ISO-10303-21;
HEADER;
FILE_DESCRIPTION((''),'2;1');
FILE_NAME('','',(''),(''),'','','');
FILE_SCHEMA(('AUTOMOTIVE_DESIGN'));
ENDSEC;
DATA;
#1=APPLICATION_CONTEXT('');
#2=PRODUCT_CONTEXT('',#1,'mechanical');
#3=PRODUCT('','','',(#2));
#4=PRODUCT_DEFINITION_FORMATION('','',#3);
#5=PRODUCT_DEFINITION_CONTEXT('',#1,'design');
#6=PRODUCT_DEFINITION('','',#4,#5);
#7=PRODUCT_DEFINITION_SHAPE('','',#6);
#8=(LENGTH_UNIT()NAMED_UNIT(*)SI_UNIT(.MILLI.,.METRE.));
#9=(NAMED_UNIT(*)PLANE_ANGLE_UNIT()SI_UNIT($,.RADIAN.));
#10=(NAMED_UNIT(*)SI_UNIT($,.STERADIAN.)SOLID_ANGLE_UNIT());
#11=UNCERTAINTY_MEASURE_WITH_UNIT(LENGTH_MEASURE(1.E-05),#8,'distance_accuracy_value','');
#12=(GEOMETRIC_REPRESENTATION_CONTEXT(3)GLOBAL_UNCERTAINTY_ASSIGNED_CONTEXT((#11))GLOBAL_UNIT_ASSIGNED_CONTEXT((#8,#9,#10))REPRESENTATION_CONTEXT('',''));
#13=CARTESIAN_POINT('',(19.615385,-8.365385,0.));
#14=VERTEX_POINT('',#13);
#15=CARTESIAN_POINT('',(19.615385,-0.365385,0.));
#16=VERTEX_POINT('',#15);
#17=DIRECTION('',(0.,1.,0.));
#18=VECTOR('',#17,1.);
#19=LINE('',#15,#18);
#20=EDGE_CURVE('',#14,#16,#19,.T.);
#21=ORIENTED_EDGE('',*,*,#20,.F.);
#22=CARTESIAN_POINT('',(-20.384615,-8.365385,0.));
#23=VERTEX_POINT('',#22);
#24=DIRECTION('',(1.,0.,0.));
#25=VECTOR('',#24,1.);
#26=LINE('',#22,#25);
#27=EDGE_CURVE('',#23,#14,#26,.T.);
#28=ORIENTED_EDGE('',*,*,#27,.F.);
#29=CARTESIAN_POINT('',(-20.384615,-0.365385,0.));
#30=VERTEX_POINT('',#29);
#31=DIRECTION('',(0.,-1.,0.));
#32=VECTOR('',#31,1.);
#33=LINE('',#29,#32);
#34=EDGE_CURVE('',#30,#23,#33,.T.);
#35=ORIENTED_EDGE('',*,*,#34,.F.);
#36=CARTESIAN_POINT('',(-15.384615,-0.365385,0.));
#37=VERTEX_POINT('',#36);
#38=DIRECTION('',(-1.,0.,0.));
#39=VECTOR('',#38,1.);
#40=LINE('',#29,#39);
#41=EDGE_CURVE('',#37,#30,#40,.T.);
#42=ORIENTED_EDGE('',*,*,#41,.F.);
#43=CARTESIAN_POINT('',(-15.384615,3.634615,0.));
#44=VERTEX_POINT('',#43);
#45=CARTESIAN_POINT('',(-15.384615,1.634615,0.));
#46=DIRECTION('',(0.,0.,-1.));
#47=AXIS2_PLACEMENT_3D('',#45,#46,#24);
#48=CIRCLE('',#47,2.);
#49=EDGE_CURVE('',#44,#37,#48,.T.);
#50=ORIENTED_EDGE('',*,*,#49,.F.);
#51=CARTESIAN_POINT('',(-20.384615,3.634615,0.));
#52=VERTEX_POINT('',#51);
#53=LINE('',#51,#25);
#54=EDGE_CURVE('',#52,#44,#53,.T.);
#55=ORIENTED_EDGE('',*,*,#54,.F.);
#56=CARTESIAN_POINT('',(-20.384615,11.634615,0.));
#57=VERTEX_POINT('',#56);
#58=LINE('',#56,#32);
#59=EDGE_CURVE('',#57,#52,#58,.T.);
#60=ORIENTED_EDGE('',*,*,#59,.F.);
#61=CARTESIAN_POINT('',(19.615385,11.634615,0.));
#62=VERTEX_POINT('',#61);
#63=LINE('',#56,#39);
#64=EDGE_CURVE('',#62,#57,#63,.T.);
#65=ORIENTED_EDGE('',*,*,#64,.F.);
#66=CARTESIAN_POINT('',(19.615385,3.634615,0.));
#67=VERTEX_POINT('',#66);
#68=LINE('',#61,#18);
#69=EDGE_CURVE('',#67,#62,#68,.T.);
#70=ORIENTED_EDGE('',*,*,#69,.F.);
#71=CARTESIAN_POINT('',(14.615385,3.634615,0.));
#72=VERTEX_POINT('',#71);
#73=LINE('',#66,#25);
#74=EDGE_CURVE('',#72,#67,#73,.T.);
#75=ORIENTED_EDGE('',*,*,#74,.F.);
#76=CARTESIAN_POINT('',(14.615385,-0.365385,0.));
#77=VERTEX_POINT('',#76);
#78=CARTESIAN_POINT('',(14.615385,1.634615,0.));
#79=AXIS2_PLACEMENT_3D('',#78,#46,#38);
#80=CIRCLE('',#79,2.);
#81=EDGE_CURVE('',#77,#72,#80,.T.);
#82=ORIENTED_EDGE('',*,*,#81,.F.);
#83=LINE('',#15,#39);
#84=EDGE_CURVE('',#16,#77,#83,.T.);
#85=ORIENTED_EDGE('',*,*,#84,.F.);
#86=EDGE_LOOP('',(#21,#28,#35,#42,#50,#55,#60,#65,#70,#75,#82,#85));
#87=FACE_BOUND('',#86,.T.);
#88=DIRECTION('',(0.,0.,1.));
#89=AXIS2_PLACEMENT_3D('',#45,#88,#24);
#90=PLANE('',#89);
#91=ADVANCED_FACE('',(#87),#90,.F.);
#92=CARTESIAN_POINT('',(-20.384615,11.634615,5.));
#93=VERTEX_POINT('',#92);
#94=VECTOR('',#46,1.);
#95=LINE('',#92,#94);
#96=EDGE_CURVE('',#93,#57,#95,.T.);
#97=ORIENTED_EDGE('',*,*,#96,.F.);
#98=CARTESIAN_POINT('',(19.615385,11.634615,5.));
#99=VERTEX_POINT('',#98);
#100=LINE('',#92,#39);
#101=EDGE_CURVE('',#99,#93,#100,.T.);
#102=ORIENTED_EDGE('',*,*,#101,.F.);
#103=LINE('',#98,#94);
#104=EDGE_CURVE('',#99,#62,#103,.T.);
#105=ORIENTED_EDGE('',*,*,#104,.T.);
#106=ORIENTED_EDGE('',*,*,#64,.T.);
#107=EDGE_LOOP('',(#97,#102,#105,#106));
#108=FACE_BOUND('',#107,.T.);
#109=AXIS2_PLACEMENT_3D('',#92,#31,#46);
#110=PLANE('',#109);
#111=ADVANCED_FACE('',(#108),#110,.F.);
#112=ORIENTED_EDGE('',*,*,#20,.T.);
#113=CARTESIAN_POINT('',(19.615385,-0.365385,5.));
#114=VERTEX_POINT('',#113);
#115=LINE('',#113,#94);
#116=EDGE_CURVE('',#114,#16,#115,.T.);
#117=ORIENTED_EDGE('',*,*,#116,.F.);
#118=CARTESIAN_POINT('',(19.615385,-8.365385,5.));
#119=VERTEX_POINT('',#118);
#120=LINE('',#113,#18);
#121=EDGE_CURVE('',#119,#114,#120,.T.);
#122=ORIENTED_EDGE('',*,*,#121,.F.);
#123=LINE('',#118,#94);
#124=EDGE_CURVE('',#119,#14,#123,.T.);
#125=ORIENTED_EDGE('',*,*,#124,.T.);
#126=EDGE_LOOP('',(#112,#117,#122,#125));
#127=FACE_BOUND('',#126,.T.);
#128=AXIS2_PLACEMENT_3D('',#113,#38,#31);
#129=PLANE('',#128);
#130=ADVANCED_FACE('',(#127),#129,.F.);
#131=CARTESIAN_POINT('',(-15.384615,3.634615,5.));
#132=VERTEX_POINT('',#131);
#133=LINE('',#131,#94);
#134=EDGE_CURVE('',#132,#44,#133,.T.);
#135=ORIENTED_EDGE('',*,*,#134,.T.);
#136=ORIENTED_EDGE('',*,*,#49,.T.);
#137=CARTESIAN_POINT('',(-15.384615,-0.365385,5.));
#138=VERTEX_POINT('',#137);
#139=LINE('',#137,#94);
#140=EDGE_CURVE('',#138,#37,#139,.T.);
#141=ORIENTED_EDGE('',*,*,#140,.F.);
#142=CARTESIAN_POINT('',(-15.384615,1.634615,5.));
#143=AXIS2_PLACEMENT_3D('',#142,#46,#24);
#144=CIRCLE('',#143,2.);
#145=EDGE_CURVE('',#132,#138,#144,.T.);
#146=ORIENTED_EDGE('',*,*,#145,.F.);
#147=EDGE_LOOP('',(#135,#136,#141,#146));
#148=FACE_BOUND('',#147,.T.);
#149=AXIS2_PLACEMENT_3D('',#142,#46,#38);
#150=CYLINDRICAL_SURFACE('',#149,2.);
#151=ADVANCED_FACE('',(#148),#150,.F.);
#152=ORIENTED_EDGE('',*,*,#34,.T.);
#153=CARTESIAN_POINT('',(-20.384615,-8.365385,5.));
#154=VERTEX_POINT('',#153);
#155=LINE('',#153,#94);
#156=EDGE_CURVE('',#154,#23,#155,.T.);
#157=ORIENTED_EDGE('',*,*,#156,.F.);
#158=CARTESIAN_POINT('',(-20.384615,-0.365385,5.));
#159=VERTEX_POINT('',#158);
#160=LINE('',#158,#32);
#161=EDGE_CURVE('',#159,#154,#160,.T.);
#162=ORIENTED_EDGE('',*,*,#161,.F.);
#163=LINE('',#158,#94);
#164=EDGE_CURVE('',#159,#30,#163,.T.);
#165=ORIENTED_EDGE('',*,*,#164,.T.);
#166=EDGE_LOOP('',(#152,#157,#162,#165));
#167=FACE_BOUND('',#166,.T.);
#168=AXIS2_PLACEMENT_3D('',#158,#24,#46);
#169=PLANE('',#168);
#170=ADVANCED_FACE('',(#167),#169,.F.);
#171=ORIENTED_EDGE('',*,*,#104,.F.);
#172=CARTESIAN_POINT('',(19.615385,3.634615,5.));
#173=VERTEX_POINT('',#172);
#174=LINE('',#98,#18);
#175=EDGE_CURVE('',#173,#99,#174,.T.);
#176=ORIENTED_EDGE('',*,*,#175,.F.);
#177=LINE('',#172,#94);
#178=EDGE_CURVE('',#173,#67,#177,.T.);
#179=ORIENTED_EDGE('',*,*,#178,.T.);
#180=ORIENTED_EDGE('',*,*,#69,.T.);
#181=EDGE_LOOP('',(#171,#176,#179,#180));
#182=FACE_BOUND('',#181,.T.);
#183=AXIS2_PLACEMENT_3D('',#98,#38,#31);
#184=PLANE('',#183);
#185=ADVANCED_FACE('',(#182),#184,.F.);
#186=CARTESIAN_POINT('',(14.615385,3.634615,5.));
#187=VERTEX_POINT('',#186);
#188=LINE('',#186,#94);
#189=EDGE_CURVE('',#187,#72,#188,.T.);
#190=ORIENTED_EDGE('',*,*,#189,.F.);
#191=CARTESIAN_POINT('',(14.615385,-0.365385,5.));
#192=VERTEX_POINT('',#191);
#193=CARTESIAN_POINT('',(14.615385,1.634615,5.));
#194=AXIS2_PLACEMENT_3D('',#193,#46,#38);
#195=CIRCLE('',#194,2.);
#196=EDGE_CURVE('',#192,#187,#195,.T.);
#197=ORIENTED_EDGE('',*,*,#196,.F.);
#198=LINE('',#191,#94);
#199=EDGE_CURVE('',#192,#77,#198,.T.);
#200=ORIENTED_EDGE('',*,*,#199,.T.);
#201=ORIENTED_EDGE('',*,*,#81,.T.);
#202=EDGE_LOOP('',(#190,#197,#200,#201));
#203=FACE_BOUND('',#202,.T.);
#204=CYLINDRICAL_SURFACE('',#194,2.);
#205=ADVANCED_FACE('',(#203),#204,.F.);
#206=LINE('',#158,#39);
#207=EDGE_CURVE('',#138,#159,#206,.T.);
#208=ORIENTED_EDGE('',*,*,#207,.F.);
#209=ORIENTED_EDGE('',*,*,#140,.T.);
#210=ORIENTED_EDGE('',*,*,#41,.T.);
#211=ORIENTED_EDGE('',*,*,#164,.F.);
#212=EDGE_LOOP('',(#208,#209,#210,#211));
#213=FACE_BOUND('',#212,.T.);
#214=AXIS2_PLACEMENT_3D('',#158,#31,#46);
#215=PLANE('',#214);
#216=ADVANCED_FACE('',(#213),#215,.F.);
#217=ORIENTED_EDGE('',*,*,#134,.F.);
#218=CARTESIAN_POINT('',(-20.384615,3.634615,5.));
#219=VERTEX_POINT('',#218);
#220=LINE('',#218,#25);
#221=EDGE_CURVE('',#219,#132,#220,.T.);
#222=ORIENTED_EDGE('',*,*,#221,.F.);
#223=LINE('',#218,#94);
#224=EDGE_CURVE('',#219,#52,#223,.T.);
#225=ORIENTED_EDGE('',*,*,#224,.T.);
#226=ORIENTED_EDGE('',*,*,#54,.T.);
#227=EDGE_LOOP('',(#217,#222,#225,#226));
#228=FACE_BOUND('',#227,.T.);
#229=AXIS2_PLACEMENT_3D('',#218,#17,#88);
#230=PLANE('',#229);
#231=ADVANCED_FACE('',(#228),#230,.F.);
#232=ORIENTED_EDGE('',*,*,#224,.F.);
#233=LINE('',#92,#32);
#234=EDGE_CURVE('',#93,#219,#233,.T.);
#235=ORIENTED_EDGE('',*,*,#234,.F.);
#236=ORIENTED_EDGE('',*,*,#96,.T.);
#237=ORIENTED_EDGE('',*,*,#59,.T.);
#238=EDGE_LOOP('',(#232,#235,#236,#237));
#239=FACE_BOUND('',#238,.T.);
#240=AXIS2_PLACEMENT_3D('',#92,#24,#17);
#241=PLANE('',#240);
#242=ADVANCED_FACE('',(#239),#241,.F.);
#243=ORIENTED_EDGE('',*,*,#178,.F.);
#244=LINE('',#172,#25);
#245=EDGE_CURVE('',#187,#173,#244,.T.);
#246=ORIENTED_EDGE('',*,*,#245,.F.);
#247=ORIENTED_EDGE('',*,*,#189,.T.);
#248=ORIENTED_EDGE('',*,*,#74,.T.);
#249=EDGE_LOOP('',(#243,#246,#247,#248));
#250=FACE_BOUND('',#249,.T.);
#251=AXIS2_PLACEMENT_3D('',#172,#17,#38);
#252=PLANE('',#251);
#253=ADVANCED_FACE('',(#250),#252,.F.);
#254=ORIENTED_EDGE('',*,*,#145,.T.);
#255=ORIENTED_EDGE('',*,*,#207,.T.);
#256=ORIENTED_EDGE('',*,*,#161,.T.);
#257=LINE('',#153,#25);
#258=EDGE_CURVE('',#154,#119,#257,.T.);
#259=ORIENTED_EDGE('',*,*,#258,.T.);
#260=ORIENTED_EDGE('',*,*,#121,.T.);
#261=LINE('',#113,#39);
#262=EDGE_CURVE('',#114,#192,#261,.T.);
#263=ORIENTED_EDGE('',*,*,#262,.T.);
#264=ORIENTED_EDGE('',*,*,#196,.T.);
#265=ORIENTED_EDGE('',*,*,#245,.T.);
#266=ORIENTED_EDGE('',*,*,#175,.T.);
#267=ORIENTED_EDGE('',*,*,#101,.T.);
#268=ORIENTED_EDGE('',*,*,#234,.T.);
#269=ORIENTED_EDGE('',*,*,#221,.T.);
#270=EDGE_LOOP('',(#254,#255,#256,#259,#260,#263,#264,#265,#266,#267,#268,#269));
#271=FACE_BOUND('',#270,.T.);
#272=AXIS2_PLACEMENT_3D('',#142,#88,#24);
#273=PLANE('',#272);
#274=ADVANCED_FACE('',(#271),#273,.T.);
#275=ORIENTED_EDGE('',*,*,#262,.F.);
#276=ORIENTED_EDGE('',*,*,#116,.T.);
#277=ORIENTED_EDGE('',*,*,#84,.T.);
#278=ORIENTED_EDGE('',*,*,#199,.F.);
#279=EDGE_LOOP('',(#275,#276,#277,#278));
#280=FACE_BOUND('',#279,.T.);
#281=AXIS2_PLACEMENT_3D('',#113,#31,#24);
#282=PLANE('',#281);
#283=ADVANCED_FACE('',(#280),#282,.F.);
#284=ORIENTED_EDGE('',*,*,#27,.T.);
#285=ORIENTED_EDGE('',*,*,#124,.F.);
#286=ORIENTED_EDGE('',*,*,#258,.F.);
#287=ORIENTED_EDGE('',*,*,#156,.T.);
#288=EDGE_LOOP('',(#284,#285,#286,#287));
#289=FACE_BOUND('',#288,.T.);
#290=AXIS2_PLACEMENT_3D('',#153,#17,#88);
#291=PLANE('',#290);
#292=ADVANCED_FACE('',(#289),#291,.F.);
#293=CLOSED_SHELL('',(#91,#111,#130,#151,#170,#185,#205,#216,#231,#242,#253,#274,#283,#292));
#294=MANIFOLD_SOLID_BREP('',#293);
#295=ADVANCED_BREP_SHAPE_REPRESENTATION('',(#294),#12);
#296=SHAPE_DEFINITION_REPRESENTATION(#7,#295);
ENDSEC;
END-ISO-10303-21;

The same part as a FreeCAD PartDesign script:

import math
import FreeCAD as App
import Part
import Sketcher

doc = App.newDocument("Part")
body = doc.addObject("PartDesign::Body", "Body")

# Sketch on XY plane
sketch1 = doc.addObject("Sketcher::SketchObject", "Sketch")
body.addObject(sketch1)
sketch1.AttachmentSupport = (doc.XY_Plane, [""])
sketch1.MapMode = "FlatFace"
sketch1.addGeometry([
    Part.LineSegment(App.Vector(19.6, -8.4, 0), App.Vector(19.6, -0.4, 0)),  # 0
    Part.LineSegment(App.Vector(19.6, -0.4, 0), App.Vector(14.6, -0.4, 0)),  # 1
    Part.ArcOfCircle(Part.Circle(App.Vector(14.6, 1.6, 0), App.Vector(0, 0, 1), 2), math.radians(90), math.radians(270)),  # 2
    Part.LineSegment(App.Vector(14.6, 3.6, 0), App.Vector(19.6, 3.6, 0)),  # 3
    Part.LineSegment(App.Vector(19.6, 3.6, 0), App.Vector(19.6, 11.6, 0)),  # 4
    Part.LineSegment(App.Vector(19.6, 11.6, 0), App.Vector(-20.4, 11.6, 0)),  # 5
    Part.LineSegment(App.Vector(-20.4, 11.6, 0), App.Vector(-20.4, 3.6, 0)),  # 6
    Part.LineSegment(App.Vector(-20.4, 3.6, 0), App.Vector(-15.4, 3.6, 0)),  # 7
    Part.ArcOfCircle(Part.Circle(App.Vector(-15.4, 1.6, 0), App.Vector(0, 0, 1), 2), math.radians(-90), math.radians(90)),  # 8
    Part.LineSegment(App.Vector(-15.4, -0.4, 0), App.Vector(-20.4, -0.4, 0)),  # 9
    Part.LineSegment(App.Vector(-20.4, -0.4, 0), App.Vector(-20.4, -8.4, 0)),  # 10
    Part.LineSegment(App.Vector(-20.4, -8.4, 0), App.Vector(19.6, -8.4, 0)),  # 11
], False)
sketch1.addConstraint([
    Sketcher.Constraint("Coincident", 0, 2, 1, 1),
    Sketcher.Constraint("Tangent", 1, 2, 2, 2),
    Sketcher.Constraint("Tangent", 2, 1, 3, 1),
    Sketcher.Constraint("Coincident", 3, 2, 4, 1),
    Sketcher.Constraint("Coincident", 4, 2, 5, 1),
    Sketcher.Constraint("Coincident", 5, 2, 6, 1),
    Sketcher.Constraint("Coincident", 6, 2, 7, 1),
    Sketcher.Constraint("Tangent", 7, 2, 8, 2),
    Sketcher.Constraint("Tangent", 8, 1, 9, 1),
    Sketcher.Constraint("Coincident", 9, 2, 10, 1),
    Sketcher.Constraint("Coincident", 10, 2, 11, 1),
    Sketcher.Constraint("Coincident", 11, 2, 0, 1),
    Sketcher.Constraint("Vertical", 0),
    Sketcher.Constraint("Horizontal", 1),
    Sketcher.Constraint("Horizontal", 3),
    Sketcher.Constraint("Vertical", 4),
    Sketcher.Constraint("Horizontal", 5),
    Sketcher.Constraint("Vertical", 6),
    Sketcher.Constraint("Horizontal", 7),
    Sketcher.Constraint("Horizontal", 9),
    Sketcher.Constraint("Vertical", 10),
    Sketcher.Constraint("Horizontal", 11),
    Sketcher.Constraint("Equal", 2, 8),
    Sketcher.Constraint("Horizontal", 2, 3, 8, 3),
    Sketcher.Constraint("Vertical", 0, 2, 3, 2),
    Sketcher.Constraint("Vertical", 6, 2, 9, 2),
    Sketcher.Constraint("Equal", 3, 7),
    Sketcher.Constraint("Equal", 0, 4),
    Sketcher.Constraint("Radius", 2, 2.0),
    Sketcher.Constraint("DistanceX", 1, 2, 1, 1, 5.0),
    Sketcher.Constraint("DistanceX", 5, 2, 5, 1, 40.0),
    Sketcher.Constraint("DistanceY", 0, 1, 0, 2, 8.0),
    Sketcher.Constraint("DistanceX", -1, 1, 2, 3, 14.615385),
    Sketcher.Constraint("DistanceY", -1, 1, 2, 3, 1.634615),
])
pad1 = doc.addObject("PartDesign::Pad", "Pad")
body.addObject(pad1)
pad1.Profile = sketch1
pad1.Length = 5

doc.recompute()
